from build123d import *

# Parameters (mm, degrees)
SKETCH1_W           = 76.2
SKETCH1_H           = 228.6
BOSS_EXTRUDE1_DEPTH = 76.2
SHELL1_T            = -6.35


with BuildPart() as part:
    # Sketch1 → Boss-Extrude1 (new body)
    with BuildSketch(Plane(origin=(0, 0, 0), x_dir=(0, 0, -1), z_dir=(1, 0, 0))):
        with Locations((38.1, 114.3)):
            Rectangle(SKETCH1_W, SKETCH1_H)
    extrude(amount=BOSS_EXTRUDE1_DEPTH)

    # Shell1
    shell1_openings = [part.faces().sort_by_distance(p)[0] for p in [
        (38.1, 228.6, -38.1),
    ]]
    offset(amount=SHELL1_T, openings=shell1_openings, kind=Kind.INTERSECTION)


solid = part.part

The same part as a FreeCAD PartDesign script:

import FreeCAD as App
import Part
import Sketcher
from FreeCAD import Vector
Q = App.Units.Quantity


def faces_at(feature, points):
    """Names of the faces that lie closest to the given points."""
    faces = feature.Shape.Faces
    near = lambda p: min(range(len(faces)), key=lambda i: faces[i].distToShape(Part.Vertex(*p))[0])
    return sorted({f"Face{near(p) + 1}" for p in points})


def add_polygon(sketch, points):
    """Adds a closed chain of lines whose ends are joined by coincident constraints."""
    first, n = sketch.GeometryCount, len(points)
    for a, b in zip(points, points[1:] + points[:1]):
        sketch.addGeometry(Part.LineSegment(App.Vector(*a, 0), App.Vector(*b, 0)), False)
    for i in range(n):
        sketch.addConstraint(Sketcher.Constraint("Coincident", first + i, 2, first + (i + 1) % n, 1))

doc = App.newDocument("Part")
body = doc.addObject("PartDesign::Body", "Body")

sketch1 = body.newObject("Sketcher::SketchObject", "Sketch")
sketch1.AttachmentSupport = (doc.getObject("YZ_Plane"), [""])
sketch1.MapMode = "FlatFace"
add_polygon(sketch1, [(229, 0), (0, 0), (0, -76), (229, -76)])
sketch1.addConstraint(Sketcher.Constraint("Horizontal", 0))
sketch1.addConstraint(Sketcher.Constraint("Vertical", 1))
sketch1.addConstraint(Sketcher.Constraint("Horizontal", 2))
sketch1.addConstraint(Sketcher.Constraint("Vertical", 3))
sketch1.addConstraint(Sketcher.Constraint("Coincident", 0, 2, -1, 1))
sketch1.addConstraint(Sketcher.Constraint("DistanceX", 0, 2, 0, 1, Q("9 in")))
sketch1.addConstraint(Sketcher.Constraint("DistanceY", 1, 2, 1, 1, Q("3 in")))
pad1 = body.newObject("PartDesign::Pad", "Pad")
pad1.Profile = sketch1
pad1.Length = Q("3 in")
doc.recompute()

thickness = body.newObject("PartDesign::Thickness", "Thickness")
thickness.Base = (pad1, faces_at(pad1, [(38.1, 228.6, -38.1)]))
thickness.Value = Q("0.25 in")
thickness.Reversed = True
thickness.Join = "Intersection"

doc.recompute()
